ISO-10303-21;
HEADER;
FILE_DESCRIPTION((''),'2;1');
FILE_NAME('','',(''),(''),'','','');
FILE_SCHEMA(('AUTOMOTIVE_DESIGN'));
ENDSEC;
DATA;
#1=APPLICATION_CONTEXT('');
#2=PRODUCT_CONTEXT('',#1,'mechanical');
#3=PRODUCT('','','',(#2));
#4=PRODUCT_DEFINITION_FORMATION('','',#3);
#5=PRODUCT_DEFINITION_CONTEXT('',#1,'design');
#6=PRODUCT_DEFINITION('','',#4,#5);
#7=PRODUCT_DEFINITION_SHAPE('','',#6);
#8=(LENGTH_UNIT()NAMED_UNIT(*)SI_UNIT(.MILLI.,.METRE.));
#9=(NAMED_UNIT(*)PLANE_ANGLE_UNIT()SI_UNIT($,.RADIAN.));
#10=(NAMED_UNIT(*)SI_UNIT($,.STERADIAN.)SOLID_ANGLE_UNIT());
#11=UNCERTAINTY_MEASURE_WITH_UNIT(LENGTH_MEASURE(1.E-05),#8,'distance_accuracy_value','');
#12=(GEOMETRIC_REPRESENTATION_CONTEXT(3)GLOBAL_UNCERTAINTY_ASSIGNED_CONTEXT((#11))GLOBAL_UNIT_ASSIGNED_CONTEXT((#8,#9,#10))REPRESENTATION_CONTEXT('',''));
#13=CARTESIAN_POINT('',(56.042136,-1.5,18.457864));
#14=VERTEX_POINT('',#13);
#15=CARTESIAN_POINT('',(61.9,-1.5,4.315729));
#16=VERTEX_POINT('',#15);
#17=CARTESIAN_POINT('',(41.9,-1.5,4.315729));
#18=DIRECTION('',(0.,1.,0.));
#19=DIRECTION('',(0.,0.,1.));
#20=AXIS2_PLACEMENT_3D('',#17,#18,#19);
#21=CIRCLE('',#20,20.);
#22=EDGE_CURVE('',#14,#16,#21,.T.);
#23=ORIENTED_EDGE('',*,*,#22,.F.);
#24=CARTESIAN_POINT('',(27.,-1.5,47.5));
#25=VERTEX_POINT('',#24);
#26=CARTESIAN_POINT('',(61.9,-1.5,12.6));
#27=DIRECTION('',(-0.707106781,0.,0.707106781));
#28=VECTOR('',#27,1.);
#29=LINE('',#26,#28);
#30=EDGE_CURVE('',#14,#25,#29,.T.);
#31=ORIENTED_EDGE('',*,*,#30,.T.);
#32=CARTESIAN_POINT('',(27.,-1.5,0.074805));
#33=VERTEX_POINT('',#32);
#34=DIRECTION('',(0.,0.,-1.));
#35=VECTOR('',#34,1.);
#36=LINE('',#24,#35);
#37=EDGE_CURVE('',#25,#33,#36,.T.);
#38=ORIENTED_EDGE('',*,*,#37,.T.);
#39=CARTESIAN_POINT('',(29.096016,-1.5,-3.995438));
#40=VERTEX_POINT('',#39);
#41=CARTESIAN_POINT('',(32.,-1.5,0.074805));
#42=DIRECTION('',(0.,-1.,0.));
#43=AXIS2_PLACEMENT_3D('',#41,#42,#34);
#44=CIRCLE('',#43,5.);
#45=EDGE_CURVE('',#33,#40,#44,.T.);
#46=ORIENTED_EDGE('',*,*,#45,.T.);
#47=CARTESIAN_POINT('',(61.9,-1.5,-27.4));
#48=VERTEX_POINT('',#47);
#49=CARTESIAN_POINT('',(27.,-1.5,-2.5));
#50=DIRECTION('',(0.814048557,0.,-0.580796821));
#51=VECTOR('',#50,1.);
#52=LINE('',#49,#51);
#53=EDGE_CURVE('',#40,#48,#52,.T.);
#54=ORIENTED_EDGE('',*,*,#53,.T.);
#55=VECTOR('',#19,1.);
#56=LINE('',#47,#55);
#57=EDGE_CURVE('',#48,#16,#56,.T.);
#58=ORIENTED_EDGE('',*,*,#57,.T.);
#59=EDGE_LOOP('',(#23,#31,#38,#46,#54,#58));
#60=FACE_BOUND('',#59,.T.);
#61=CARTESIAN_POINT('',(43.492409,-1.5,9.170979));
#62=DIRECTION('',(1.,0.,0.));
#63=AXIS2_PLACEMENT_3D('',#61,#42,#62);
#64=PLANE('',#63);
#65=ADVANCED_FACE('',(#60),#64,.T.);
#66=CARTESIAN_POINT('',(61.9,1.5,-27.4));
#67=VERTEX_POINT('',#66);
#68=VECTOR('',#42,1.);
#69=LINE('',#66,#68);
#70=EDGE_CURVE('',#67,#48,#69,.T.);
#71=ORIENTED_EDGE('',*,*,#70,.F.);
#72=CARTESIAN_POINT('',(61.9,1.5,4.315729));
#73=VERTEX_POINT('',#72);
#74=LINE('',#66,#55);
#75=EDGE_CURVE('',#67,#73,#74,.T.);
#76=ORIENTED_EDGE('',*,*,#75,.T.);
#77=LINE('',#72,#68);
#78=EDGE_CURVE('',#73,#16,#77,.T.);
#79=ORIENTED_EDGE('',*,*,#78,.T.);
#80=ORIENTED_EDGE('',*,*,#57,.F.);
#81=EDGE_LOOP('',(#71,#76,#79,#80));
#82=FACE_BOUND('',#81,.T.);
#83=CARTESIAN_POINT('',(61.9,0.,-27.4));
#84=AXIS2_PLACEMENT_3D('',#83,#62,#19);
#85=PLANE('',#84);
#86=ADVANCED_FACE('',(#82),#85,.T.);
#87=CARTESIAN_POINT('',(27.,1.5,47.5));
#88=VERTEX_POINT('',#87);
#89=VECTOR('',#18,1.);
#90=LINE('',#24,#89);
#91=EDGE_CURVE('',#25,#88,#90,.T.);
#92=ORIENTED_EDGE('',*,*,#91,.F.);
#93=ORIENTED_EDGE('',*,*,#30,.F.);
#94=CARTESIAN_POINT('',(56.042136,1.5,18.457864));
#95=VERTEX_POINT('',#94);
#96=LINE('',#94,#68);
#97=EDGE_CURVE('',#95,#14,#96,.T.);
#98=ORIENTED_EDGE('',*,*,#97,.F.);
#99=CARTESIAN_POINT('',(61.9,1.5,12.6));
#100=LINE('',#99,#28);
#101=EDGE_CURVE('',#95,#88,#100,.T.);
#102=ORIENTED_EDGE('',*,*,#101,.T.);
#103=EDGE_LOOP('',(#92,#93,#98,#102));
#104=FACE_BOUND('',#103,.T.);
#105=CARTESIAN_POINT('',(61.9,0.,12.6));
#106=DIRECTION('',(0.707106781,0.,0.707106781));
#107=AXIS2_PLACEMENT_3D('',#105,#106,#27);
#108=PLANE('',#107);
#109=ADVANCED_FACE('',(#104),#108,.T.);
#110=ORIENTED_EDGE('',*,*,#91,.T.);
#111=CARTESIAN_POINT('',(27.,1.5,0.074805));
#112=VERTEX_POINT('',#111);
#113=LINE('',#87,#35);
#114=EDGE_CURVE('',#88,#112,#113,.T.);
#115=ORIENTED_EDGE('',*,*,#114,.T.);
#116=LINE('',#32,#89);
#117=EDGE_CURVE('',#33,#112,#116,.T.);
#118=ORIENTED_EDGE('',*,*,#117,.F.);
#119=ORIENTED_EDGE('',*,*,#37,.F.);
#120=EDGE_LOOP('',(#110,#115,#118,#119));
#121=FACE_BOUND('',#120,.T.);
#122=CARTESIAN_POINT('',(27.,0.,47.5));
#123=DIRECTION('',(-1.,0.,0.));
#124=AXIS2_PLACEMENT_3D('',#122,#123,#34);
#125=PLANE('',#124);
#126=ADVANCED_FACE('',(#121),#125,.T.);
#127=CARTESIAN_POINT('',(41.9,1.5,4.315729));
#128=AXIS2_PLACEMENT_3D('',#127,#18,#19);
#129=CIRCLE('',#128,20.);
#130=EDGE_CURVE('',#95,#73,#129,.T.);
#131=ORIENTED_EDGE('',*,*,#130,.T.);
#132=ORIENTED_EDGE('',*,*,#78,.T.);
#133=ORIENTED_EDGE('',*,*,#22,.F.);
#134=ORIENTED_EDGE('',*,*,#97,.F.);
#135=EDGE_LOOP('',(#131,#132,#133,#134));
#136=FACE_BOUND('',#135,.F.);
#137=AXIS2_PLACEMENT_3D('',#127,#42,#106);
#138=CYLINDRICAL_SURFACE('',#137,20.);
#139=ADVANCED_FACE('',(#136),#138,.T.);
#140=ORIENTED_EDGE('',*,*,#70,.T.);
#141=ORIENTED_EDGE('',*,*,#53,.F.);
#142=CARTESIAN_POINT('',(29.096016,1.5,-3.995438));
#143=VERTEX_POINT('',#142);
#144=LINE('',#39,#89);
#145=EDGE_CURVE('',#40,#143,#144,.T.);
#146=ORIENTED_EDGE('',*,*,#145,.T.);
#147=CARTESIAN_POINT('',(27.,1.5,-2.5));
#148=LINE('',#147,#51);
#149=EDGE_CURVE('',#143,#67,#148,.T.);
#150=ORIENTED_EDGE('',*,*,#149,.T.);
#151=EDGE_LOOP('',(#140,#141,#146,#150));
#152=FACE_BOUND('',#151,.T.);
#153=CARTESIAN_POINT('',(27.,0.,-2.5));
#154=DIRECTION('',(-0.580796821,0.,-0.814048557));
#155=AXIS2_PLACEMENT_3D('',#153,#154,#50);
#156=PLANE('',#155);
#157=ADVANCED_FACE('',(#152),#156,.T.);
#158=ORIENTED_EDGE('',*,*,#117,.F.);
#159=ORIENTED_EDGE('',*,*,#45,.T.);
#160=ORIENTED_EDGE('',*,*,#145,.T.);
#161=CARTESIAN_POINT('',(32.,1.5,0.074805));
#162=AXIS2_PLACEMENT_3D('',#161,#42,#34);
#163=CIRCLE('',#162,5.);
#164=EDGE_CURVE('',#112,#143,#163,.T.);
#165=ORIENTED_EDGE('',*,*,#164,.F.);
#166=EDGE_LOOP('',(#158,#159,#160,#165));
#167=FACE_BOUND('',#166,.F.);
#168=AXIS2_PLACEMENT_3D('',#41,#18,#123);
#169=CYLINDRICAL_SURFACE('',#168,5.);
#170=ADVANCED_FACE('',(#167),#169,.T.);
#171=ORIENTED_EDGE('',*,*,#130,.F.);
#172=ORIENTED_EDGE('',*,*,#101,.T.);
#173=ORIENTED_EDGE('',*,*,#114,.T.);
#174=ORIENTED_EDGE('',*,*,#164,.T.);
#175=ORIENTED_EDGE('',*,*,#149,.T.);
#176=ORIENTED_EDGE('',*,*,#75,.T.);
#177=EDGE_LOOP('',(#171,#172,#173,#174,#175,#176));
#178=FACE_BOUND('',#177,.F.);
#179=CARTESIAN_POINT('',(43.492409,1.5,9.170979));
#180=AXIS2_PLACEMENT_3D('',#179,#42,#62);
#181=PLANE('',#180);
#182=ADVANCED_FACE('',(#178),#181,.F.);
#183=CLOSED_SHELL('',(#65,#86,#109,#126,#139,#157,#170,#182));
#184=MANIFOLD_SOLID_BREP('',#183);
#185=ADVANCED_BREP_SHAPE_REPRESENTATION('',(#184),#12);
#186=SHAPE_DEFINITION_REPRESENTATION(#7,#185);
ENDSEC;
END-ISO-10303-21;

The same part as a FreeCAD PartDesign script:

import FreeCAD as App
import Part
import Sketcher

V = App.Vector
Q = App.Units.Quantity


def edges_at(feature, points):
    """Names of the edges that pass closest to the given points."""
    edges = feature.Shape.Edges
    near = lambda p: min(range(len(edges)), key=lambda i: edges[i].distToShape(Part.Vertex(*p))[0])
    return sorted({f"Edge{near(p) + 1}" for p in points})


def add_polygon(sketch, points):
    """Adds a closed chain of lines whose ends are joined by coincident constraints."""
    first, n = sketch.GeometryCount, len(points)
    for a, b in zip(points, points[1:] + points[:1]):
        sketch.addGeometry(Part.LineSegment(App.Vector(*a, 0), App.Vector(*b, 0)), False)
    for i in range(n):
        sketch.addConstraint(Sketcher.Constraint("Coincident", first + i, 2, first + (i + 1) % n, 1))

doc = App.newDocument("Part")
body = doc.addObject("PartDesign::Body", "Body")

# Sketch on YZ plane
sketch1 = body.newObject("Sketcher::SketchObject", "Sketch")
sketch1.AttachmentSupport = (doc.getObject("YZ_Plane"), [""])
sketch1.MapMode = "FlatFace"
add_polygon(sketch1, [(27, -2.5), (61.9, -27.4), (61.9, 12.6), (27, 47.5)])  # lines 0-3
sketch1.addConstraint(Sketcher.Constraint("Vertical", 1))
sketch1.addConstraint(Sketcher.Constraint("Vertical", 3))
sketch1.addConstraint(Sketcher.Constraint("DistanceY", 1, 1, 1, 2, 40.0))
sketch1.addConstraint(Sketcher.Constraint("DistanceY", 3, 2, 3, 1, 50.0))
sketch1.addConstraint(Sketcher.Constraint("Angle", 2, Q("135 deg")))
sketch1.addConstraint(Sketcher.Constraint("DistanceX", -1, 1, 2, 2, 27.0))
sketch1.addConstraint(Sketcher.Constraint("DistanceX", -1, 1, 0, 2, 61.9))
sketch1.addConstraint(Sketcher.Constraint("DistanceY", 0, 2, -1, 1, 27.4))
pad1 = body.newObject("PartDesign::Pad", "Pad")
pad1.Profile = sketch1
pad1.Length = 3
pad1.Midplane = True
doc.recompute()

fillet = body.newObject("PartDesign::Fillet", "Fillet")
fillet.Base = (pad1, edges_at(pad1, [(0, 61.9, 12.6)]))
fillet.Radius = 20
doc.recompute()

fillet2 = body.newObject("PartDesign::Fillet", "Fillet001")
fillet2.Base = (fillet, edges_at(fillet, [(0, 27, -2.5)]))
fillet2.Radius = 5
body2 = doc.addObject("PartDesign::Body", "Body001")
doc.recompute()

body.Placement = App.Placement(V(0, 0, 0), App.Rotation(V(0, 0, -1), 90))
boolean = body2.newObject("PartDesign::Boolean", "Boolean")
boolean.Type = "Fuse"
boolean.addObjects([body])

doc.recompute()
